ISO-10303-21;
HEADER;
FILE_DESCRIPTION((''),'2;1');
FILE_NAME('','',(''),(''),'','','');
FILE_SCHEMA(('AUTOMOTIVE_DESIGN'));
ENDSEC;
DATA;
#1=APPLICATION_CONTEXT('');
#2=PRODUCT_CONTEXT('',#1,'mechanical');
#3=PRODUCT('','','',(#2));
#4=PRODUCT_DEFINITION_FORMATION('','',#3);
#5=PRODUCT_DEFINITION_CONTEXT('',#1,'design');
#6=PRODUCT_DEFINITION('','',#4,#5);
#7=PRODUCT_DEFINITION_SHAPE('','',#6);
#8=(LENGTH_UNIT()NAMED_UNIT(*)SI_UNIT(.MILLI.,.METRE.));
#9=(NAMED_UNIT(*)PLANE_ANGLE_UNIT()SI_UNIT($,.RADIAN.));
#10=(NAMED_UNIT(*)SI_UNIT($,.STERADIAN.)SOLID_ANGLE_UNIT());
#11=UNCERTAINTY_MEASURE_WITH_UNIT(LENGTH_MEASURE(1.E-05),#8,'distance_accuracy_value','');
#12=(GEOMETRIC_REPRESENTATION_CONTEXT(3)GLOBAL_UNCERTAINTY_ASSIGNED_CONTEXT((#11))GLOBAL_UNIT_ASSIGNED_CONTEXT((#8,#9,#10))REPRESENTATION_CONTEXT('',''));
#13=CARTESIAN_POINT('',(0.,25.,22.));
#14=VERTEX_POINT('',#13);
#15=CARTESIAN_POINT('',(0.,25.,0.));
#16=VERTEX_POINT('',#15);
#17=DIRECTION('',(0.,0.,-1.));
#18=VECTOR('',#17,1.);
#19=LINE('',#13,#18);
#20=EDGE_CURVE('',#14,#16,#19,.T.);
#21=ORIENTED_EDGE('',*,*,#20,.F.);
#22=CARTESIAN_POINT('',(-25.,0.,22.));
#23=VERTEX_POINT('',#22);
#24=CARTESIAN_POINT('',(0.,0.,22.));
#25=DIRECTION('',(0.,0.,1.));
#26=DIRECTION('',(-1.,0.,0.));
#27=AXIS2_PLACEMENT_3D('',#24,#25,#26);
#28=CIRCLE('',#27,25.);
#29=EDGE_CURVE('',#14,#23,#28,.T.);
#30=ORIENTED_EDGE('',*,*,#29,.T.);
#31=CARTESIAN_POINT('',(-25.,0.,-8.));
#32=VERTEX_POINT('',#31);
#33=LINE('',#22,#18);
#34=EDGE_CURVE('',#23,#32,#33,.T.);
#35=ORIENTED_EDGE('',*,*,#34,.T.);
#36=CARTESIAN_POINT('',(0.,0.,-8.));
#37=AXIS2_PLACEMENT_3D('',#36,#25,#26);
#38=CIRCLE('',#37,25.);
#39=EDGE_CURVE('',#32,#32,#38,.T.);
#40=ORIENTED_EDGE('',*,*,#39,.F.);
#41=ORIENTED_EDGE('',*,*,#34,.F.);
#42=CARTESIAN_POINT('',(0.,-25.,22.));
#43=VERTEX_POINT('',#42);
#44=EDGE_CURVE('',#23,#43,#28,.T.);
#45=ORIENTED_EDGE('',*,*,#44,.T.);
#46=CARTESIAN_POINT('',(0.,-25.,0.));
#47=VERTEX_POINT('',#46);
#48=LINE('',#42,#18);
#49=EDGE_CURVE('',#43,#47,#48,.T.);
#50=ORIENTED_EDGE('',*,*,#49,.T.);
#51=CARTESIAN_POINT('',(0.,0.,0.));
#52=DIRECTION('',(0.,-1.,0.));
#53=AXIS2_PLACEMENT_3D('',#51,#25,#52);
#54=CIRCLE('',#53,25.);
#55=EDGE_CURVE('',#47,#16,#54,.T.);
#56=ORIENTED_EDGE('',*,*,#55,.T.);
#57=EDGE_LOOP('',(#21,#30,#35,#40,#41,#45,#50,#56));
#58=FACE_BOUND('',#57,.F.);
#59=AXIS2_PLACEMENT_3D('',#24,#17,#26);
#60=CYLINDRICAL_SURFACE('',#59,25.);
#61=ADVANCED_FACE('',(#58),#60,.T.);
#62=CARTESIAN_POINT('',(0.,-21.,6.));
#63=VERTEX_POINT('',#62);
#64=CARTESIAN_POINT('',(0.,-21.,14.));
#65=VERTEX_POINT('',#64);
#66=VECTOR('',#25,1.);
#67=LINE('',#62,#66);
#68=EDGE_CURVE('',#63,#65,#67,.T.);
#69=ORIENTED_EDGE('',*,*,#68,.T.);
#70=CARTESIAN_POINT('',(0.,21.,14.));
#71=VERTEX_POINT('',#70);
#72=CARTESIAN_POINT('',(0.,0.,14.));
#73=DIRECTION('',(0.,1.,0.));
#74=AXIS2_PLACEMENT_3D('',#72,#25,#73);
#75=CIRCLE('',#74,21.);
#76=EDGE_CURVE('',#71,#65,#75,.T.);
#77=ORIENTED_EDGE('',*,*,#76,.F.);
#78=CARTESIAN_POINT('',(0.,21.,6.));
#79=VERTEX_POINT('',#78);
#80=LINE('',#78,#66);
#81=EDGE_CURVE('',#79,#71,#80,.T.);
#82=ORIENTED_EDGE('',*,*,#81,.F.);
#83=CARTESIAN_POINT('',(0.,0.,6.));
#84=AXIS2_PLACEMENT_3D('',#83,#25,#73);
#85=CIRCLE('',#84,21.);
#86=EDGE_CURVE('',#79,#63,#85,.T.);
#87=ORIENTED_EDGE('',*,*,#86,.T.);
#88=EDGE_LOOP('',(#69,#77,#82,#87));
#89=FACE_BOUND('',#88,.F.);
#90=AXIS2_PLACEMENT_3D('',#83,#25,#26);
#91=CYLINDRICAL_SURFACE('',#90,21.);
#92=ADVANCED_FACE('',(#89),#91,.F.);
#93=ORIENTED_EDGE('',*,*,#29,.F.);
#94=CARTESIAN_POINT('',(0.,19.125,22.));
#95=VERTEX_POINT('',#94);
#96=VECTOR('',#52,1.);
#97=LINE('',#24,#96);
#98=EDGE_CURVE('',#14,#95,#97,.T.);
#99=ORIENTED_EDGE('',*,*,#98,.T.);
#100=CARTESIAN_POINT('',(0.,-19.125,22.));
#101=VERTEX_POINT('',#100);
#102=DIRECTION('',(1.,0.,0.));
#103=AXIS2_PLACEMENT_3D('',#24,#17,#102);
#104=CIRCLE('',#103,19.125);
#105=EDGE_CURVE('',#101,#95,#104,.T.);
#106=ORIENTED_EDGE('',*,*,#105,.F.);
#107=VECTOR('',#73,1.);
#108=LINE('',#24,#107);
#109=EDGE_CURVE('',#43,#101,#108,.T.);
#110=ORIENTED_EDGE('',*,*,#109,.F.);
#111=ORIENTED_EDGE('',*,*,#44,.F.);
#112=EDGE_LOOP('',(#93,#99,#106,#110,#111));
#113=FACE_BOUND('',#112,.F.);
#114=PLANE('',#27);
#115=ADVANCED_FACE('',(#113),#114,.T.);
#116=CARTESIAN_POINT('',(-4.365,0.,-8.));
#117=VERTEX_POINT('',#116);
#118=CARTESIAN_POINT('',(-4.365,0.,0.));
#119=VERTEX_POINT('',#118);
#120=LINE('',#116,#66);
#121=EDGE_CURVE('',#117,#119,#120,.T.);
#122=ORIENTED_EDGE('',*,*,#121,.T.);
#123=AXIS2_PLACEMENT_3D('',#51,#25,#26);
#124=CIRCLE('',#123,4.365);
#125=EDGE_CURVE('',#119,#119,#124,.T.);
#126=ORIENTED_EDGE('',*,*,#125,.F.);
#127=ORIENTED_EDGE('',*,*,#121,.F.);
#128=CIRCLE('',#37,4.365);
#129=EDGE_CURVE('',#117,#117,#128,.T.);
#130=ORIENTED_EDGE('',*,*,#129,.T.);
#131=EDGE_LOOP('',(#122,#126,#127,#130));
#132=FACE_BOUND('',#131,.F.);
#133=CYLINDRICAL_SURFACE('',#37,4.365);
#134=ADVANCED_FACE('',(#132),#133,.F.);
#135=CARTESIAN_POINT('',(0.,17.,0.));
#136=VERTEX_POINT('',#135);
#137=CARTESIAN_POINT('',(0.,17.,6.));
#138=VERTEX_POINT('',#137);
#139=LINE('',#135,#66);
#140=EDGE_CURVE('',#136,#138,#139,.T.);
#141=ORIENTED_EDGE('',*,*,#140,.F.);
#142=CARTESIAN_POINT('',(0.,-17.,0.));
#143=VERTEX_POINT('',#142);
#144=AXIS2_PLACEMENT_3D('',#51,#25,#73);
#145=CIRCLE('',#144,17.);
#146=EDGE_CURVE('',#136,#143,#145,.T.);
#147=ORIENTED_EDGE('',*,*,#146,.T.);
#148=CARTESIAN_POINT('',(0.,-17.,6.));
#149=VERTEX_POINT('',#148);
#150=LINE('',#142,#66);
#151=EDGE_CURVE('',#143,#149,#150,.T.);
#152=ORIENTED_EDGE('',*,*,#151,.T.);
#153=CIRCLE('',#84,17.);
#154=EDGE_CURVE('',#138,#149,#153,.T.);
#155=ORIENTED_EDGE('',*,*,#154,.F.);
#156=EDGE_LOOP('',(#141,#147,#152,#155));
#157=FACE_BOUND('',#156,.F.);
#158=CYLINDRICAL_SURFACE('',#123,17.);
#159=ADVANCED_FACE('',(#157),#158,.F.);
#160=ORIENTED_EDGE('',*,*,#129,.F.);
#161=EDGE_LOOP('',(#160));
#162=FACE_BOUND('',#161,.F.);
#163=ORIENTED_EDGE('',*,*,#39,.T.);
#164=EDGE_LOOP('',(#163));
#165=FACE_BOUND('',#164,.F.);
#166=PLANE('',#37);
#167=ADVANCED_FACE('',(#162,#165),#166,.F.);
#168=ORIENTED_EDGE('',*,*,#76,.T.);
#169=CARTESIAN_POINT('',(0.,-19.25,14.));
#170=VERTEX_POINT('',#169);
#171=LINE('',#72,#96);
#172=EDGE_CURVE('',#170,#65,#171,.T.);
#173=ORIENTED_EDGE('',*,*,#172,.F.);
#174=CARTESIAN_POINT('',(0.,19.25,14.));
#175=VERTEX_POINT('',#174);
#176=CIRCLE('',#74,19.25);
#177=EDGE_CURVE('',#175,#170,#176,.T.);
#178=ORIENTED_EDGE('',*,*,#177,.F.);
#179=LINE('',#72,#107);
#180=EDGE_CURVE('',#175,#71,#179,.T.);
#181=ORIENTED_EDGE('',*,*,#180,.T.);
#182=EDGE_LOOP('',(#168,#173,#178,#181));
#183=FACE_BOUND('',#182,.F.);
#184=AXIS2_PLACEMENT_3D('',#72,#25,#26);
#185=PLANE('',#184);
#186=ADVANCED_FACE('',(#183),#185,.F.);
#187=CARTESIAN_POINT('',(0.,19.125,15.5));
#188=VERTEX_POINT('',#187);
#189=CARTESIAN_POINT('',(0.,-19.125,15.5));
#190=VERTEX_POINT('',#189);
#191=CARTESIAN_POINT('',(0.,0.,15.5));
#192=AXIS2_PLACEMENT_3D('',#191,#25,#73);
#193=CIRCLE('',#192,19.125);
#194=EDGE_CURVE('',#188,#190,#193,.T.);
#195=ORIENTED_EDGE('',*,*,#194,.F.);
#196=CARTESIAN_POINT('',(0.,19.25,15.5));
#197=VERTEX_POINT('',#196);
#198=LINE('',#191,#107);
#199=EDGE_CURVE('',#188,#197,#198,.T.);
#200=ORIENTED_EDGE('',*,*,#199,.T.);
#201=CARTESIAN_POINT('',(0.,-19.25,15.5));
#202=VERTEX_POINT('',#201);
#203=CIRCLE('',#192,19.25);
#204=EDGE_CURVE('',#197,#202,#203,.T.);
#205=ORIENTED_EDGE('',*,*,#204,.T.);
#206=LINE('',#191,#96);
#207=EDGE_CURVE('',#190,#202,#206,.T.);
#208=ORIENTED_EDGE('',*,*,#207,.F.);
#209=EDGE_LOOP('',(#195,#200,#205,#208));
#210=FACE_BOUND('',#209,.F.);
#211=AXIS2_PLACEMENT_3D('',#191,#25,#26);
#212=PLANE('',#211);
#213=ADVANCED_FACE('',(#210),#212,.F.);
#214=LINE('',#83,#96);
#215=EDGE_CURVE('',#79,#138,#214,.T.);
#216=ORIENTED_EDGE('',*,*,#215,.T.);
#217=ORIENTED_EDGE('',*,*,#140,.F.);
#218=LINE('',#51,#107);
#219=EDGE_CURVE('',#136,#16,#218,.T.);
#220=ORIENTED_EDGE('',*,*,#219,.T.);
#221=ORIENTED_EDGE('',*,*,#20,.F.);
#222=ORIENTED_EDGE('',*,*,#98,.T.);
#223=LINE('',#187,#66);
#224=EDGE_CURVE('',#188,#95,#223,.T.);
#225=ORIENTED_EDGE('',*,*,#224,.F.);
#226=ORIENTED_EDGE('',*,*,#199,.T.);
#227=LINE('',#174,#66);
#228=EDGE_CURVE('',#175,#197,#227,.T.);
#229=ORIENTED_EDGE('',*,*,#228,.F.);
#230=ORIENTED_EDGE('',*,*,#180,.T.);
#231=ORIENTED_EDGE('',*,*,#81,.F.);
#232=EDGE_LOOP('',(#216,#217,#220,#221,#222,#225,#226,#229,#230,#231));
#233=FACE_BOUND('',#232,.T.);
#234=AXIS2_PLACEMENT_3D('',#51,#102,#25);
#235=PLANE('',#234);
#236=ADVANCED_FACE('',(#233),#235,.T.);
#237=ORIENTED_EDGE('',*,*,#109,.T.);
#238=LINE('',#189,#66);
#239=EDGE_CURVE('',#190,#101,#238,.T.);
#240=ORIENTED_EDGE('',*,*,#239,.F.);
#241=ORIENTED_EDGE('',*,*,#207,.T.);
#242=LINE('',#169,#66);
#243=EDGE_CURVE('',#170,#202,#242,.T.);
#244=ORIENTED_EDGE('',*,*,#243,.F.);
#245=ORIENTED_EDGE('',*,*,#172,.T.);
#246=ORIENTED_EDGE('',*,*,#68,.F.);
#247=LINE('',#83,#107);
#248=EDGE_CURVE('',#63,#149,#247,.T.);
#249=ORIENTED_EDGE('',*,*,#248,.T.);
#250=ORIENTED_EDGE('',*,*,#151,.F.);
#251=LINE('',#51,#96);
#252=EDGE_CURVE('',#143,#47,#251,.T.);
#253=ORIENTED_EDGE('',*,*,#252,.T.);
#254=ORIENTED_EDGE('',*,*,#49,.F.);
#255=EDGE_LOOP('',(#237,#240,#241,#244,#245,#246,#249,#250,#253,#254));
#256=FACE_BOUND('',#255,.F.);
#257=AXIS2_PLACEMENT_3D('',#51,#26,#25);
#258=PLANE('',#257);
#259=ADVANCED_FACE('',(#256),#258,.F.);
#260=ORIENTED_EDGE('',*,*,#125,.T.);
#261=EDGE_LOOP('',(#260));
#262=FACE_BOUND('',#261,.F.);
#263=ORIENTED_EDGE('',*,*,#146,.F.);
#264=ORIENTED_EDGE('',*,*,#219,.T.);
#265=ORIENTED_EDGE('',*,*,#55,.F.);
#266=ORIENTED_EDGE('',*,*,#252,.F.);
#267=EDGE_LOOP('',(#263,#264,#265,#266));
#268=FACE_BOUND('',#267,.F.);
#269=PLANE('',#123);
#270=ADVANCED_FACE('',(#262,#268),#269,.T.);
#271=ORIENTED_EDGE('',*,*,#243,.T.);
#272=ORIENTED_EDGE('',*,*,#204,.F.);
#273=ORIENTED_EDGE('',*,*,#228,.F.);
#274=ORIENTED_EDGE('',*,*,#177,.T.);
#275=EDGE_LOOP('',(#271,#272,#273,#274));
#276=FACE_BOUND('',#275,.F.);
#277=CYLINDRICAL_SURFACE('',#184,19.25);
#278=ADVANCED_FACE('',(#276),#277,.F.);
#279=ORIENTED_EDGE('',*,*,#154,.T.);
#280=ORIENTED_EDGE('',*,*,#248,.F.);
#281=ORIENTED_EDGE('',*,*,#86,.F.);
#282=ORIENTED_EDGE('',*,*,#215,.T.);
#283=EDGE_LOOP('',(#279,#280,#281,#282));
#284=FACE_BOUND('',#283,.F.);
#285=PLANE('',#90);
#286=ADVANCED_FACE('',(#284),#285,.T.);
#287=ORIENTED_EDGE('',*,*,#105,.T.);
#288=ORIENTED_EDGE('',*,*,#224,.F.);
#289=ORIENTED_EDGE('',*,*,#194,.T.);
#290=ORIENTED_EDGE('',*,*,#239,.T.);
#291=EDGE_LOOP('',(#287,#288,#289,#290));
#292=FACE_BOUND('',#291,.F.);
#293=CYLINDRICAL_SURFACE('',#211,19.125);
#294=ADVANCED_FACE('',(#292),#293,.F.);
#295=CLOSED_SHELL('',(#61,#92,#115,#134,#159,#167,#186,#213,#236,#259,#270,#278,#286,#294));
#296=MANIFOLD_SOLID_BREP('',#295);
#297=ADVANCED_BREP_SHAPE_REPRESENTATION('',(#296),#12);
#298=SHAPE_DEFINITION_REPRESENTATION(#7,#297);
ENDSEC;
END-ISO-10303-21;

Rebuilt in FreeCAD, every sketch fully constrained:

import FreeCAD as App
import Part
import Sketcher
Q = App.Units.Quantity

doc = App.newDocument("Part")
params = doc.addObject("Spreadsheet::Sheet", "Params")
for row, (alias, value) in enumerate([
    ("sketch1_width", "4 mm"),
    ("sketch1_height", "8 mm"),
    ("sketch1_height2", "6 mm"),
    ("sketch1_height3", "30 mm"),
    ("sketch1_height4", "1.5 mm"),
    ("revolution_angle", "360 deg"),
    ("sketch2_width", "30 mm"),
], start=1):
    params.set(f"A{row}", alias)
    params.set(f"B{row}", "=" + value)
    params.setAlias(f"B{row}", alias)

body = doc.addObject("PartDesign::Body", "Body")

# Sketch on XZ plane
sketch1 = body.newObject("Sketcher::SketchObject", "Sketch")
sketch1.AttachmentSupport = (doc.getObject("XZ_Plane"), [""])
sketch1.MapMode = "FlatFace"
sketch1.addGeometry([
    Part.LineSegment(App.Vector(-4.365, -8, 0), App.Vector(-4.365, 0, 0)),  # 0
    Part.LineSegment(App.Vector(-4.365, 0, 0), App.Vector(-17, 0, 0)),  # 1
    Part.LineSegment(App.Vector(-17, 0, 0), App.Vector(-17, 6, 0)),  # 2
    Part.LineSegment(App.Vector(-17, 6, 0), App.Vector(-21, 6, 0)),  # 3
    Part.LineSegment(App.Vector(-21, 6, 0), App.Vector(-21, 14, 0)),  # 4
    Part.LineSegment(App.Vector(-21, 14, 0), App.Vector(-19.25, 14, 0)),  # 5
    Part.LineSegment(App.Vector(-19.25, 14, 0), App.Vector(-19.25, 15.5, 0)),  # 6
    Part.LineSegment(App.Vector(-19.25, 15.5, 0), App.Vector(-19.125, 15.5, 0)),  # 7
    Part.LineSegment(App.Vector(-19.125, 15.5, 0), App.Vector(-19.125, 22, 0)),  # 8
    Part.LineSegment(App.Vector(-19.125, 22, 0), App.Vector(-25, 22, 0)),  # 9
    Part.LineSegment(App.Vector(-25, 22, 0), App.Vector(-25, -8, 0)),  # 10
    Part.LineSegment(App.Vector(-25, -8, 0), App.Vector(-4.365, -8, 0)),  # 11
], False)
sketch1.addConstraint([
    Sketcher.Constraint("Coincident", 0, 2, 1, 1),
    Sketcher.Constraint("Coincident", 1, 2, 2, 1),
    Sketcher.Constraint("Coincident", 2, 2, 3, 1),
    Sketcher.Constraint("Coincident", 3, 2, 4, 1),
    Sketcher.Constraint("Coincident", 4, 2, 5, 1),
    Sketcher.Constraint("Coincident", 5, 2, 6, 1),
    Sketcher.Constraint("Coincident", 6, 2, 7, 1),
    Sketcher.Constraint("Coincident", 7, 2, 8, 1),
    Sketcher.Constraint("Coincident", 8, 2, 9, 1),
    Sketcher.Constraint("Coincident", 9, 2, 10, 1),
    Sketcher.Constraint("Coincident", 10, 2, 11, 1),
    Sketcher.Constraint("Coincident", 11, 2, 0, 1),
    Sketcher.Constraint("Vertical", 0),
    Sketcher.Constraint("Horizontal", 1),
    Sketcher.Constraint("Vertical", 2),
    Sketcher.Constraint("Horizontal", 3),
    Sketcher.Constraint("Vertical", 4),
    Sketcher.Constraint("Horizontal", 5),
    Sketcher.Constraint("Vertical", 6),
    Sketcher.Constraint("Horizontal", 7),
    Sketcher.Constraint("Vertical", 8),
    Sketcher.Constraint("Horizontal", 9),
    Sketcher.Constraint("Vertical", 10),
    Sketcher.Constraint("Horizontal", 11),
    Sketcher.Constraint("PointOnObject", 0, 2, -1),
    Sketcher.Constraint("Equal", 0, 4),
    Sketcher.Constraint("DistanceX", 3, 2, 3, 1, Q("4 mm")),
    Sketcher.Constraint("DistanceY", 0, 1, 0, 2, Q("8 mm")),
    Sketcher.Constraint("DistanceY", 2, 1, 2, 2, Q("6 mm")),
    Sketcher.Constraint("DistanceY", 10, 2, 10, 1, Q("30 mm")),
    Sketcher.Constraint("DistanceY", 6, 1, 6, 2, Q("1.5 mm")),
    Sketcher.Constraint("DistanceX", 1, 2, -1, 1, Q("17 mm")),
    Sketcher.Constraint("DistanceX", 9, 2, -1, 1, Q("25 mm")),
    Sketcher.Constraint("DistanceX", 5, 1, 5, 2, Q("1.75 mm")),
    Sketcher.Constraint("DistanceX", 1, 2, 1, 1, Q("12.635 mm")),
    Sketcher.Constraint("DistanceX", 7, 1, 7, 2, Q("0.125 mm")),
])
sketch1.setExpression("Constraints[26]", "Params.sketch1_width")
sketch1.setExpression("Constraints[27]", "Params.sketch1_height")
sketch1.setExpression("Constraints[28]", "Params.sketch1_height2")
sketch1.setExpression("Constraints[29]", "Params.sketch1_height3")
sketch1.setExpression("Constraints[30]", "Params.sketch1_height4")
revolution = body.newObject("PartDesign::Revolution", "Revolution")
revolution.Profile = sketch1
revolution.ReferenceAxis = (sketch1, ["V_Axis"])
revolution.setExpression("Angle", "Params.revolution_angle")

# Sketch on XZ plane
sketch2 = body.newObject("Sketcher::SketchObject", "Sketch001")
sketch2.AttachmentSupport = (doc.getObject("XZ_Plane"), [""])
sketch2.MapMode = "FlatFace"
sketch2.addGeometry([
    Part.LineSegment(App.Vector(0, 30, 0), App.Vector(0, 0, 0)),
    Part.LineSegment(App.Vector(0, 0, 0), App.Vector(30, 0, 0)),
    Part.LineSegment(App.Vector(30, 0, 0), App.Vector(30, 30, 0)),
    Part.LineSegment(App.Vector(30, 30, 0), App.Vector(0, 30, 0)),
], False)
sketch2.addConstraint([
    Sketcher.Constraint("Coincident", 0, 2, 1, 1),
    Sketcher.Constraint("Coincident", 1, 2, 2, 1),
    Sketcher.Constraint("Coincident", 2, 2, 3, 1),
    Sketcher.Constraint("Coincident", 3, 2, 0, 1),
    Sketcher.Constraint("Vertical", 0),
    Sketcher.Constraint("Horizontal", 1),
    Sketcher.Constraint("Vertical", 2),
    Sketcher.Constraint("Horizontal", 3),
    Sketcher.Constraint("Coincident", 0, 2, -1, 1),
    Sketcher.Constraint("Equal", 3, 0),
    Sketcher.Constraint("DistanceX", 1, 1, 1, 2, Q("30 mm")),
])
sketch2.setExpression("Constraints[10]", "Params.sketch2_width")
pocket1 = body.newObject("PartDesign::Pocket", "Pocket")
pocket1.Profile = sketch2
pocket1.Type = "ThroughAll"
pocket1.Midplane = True

doc.recompute()
